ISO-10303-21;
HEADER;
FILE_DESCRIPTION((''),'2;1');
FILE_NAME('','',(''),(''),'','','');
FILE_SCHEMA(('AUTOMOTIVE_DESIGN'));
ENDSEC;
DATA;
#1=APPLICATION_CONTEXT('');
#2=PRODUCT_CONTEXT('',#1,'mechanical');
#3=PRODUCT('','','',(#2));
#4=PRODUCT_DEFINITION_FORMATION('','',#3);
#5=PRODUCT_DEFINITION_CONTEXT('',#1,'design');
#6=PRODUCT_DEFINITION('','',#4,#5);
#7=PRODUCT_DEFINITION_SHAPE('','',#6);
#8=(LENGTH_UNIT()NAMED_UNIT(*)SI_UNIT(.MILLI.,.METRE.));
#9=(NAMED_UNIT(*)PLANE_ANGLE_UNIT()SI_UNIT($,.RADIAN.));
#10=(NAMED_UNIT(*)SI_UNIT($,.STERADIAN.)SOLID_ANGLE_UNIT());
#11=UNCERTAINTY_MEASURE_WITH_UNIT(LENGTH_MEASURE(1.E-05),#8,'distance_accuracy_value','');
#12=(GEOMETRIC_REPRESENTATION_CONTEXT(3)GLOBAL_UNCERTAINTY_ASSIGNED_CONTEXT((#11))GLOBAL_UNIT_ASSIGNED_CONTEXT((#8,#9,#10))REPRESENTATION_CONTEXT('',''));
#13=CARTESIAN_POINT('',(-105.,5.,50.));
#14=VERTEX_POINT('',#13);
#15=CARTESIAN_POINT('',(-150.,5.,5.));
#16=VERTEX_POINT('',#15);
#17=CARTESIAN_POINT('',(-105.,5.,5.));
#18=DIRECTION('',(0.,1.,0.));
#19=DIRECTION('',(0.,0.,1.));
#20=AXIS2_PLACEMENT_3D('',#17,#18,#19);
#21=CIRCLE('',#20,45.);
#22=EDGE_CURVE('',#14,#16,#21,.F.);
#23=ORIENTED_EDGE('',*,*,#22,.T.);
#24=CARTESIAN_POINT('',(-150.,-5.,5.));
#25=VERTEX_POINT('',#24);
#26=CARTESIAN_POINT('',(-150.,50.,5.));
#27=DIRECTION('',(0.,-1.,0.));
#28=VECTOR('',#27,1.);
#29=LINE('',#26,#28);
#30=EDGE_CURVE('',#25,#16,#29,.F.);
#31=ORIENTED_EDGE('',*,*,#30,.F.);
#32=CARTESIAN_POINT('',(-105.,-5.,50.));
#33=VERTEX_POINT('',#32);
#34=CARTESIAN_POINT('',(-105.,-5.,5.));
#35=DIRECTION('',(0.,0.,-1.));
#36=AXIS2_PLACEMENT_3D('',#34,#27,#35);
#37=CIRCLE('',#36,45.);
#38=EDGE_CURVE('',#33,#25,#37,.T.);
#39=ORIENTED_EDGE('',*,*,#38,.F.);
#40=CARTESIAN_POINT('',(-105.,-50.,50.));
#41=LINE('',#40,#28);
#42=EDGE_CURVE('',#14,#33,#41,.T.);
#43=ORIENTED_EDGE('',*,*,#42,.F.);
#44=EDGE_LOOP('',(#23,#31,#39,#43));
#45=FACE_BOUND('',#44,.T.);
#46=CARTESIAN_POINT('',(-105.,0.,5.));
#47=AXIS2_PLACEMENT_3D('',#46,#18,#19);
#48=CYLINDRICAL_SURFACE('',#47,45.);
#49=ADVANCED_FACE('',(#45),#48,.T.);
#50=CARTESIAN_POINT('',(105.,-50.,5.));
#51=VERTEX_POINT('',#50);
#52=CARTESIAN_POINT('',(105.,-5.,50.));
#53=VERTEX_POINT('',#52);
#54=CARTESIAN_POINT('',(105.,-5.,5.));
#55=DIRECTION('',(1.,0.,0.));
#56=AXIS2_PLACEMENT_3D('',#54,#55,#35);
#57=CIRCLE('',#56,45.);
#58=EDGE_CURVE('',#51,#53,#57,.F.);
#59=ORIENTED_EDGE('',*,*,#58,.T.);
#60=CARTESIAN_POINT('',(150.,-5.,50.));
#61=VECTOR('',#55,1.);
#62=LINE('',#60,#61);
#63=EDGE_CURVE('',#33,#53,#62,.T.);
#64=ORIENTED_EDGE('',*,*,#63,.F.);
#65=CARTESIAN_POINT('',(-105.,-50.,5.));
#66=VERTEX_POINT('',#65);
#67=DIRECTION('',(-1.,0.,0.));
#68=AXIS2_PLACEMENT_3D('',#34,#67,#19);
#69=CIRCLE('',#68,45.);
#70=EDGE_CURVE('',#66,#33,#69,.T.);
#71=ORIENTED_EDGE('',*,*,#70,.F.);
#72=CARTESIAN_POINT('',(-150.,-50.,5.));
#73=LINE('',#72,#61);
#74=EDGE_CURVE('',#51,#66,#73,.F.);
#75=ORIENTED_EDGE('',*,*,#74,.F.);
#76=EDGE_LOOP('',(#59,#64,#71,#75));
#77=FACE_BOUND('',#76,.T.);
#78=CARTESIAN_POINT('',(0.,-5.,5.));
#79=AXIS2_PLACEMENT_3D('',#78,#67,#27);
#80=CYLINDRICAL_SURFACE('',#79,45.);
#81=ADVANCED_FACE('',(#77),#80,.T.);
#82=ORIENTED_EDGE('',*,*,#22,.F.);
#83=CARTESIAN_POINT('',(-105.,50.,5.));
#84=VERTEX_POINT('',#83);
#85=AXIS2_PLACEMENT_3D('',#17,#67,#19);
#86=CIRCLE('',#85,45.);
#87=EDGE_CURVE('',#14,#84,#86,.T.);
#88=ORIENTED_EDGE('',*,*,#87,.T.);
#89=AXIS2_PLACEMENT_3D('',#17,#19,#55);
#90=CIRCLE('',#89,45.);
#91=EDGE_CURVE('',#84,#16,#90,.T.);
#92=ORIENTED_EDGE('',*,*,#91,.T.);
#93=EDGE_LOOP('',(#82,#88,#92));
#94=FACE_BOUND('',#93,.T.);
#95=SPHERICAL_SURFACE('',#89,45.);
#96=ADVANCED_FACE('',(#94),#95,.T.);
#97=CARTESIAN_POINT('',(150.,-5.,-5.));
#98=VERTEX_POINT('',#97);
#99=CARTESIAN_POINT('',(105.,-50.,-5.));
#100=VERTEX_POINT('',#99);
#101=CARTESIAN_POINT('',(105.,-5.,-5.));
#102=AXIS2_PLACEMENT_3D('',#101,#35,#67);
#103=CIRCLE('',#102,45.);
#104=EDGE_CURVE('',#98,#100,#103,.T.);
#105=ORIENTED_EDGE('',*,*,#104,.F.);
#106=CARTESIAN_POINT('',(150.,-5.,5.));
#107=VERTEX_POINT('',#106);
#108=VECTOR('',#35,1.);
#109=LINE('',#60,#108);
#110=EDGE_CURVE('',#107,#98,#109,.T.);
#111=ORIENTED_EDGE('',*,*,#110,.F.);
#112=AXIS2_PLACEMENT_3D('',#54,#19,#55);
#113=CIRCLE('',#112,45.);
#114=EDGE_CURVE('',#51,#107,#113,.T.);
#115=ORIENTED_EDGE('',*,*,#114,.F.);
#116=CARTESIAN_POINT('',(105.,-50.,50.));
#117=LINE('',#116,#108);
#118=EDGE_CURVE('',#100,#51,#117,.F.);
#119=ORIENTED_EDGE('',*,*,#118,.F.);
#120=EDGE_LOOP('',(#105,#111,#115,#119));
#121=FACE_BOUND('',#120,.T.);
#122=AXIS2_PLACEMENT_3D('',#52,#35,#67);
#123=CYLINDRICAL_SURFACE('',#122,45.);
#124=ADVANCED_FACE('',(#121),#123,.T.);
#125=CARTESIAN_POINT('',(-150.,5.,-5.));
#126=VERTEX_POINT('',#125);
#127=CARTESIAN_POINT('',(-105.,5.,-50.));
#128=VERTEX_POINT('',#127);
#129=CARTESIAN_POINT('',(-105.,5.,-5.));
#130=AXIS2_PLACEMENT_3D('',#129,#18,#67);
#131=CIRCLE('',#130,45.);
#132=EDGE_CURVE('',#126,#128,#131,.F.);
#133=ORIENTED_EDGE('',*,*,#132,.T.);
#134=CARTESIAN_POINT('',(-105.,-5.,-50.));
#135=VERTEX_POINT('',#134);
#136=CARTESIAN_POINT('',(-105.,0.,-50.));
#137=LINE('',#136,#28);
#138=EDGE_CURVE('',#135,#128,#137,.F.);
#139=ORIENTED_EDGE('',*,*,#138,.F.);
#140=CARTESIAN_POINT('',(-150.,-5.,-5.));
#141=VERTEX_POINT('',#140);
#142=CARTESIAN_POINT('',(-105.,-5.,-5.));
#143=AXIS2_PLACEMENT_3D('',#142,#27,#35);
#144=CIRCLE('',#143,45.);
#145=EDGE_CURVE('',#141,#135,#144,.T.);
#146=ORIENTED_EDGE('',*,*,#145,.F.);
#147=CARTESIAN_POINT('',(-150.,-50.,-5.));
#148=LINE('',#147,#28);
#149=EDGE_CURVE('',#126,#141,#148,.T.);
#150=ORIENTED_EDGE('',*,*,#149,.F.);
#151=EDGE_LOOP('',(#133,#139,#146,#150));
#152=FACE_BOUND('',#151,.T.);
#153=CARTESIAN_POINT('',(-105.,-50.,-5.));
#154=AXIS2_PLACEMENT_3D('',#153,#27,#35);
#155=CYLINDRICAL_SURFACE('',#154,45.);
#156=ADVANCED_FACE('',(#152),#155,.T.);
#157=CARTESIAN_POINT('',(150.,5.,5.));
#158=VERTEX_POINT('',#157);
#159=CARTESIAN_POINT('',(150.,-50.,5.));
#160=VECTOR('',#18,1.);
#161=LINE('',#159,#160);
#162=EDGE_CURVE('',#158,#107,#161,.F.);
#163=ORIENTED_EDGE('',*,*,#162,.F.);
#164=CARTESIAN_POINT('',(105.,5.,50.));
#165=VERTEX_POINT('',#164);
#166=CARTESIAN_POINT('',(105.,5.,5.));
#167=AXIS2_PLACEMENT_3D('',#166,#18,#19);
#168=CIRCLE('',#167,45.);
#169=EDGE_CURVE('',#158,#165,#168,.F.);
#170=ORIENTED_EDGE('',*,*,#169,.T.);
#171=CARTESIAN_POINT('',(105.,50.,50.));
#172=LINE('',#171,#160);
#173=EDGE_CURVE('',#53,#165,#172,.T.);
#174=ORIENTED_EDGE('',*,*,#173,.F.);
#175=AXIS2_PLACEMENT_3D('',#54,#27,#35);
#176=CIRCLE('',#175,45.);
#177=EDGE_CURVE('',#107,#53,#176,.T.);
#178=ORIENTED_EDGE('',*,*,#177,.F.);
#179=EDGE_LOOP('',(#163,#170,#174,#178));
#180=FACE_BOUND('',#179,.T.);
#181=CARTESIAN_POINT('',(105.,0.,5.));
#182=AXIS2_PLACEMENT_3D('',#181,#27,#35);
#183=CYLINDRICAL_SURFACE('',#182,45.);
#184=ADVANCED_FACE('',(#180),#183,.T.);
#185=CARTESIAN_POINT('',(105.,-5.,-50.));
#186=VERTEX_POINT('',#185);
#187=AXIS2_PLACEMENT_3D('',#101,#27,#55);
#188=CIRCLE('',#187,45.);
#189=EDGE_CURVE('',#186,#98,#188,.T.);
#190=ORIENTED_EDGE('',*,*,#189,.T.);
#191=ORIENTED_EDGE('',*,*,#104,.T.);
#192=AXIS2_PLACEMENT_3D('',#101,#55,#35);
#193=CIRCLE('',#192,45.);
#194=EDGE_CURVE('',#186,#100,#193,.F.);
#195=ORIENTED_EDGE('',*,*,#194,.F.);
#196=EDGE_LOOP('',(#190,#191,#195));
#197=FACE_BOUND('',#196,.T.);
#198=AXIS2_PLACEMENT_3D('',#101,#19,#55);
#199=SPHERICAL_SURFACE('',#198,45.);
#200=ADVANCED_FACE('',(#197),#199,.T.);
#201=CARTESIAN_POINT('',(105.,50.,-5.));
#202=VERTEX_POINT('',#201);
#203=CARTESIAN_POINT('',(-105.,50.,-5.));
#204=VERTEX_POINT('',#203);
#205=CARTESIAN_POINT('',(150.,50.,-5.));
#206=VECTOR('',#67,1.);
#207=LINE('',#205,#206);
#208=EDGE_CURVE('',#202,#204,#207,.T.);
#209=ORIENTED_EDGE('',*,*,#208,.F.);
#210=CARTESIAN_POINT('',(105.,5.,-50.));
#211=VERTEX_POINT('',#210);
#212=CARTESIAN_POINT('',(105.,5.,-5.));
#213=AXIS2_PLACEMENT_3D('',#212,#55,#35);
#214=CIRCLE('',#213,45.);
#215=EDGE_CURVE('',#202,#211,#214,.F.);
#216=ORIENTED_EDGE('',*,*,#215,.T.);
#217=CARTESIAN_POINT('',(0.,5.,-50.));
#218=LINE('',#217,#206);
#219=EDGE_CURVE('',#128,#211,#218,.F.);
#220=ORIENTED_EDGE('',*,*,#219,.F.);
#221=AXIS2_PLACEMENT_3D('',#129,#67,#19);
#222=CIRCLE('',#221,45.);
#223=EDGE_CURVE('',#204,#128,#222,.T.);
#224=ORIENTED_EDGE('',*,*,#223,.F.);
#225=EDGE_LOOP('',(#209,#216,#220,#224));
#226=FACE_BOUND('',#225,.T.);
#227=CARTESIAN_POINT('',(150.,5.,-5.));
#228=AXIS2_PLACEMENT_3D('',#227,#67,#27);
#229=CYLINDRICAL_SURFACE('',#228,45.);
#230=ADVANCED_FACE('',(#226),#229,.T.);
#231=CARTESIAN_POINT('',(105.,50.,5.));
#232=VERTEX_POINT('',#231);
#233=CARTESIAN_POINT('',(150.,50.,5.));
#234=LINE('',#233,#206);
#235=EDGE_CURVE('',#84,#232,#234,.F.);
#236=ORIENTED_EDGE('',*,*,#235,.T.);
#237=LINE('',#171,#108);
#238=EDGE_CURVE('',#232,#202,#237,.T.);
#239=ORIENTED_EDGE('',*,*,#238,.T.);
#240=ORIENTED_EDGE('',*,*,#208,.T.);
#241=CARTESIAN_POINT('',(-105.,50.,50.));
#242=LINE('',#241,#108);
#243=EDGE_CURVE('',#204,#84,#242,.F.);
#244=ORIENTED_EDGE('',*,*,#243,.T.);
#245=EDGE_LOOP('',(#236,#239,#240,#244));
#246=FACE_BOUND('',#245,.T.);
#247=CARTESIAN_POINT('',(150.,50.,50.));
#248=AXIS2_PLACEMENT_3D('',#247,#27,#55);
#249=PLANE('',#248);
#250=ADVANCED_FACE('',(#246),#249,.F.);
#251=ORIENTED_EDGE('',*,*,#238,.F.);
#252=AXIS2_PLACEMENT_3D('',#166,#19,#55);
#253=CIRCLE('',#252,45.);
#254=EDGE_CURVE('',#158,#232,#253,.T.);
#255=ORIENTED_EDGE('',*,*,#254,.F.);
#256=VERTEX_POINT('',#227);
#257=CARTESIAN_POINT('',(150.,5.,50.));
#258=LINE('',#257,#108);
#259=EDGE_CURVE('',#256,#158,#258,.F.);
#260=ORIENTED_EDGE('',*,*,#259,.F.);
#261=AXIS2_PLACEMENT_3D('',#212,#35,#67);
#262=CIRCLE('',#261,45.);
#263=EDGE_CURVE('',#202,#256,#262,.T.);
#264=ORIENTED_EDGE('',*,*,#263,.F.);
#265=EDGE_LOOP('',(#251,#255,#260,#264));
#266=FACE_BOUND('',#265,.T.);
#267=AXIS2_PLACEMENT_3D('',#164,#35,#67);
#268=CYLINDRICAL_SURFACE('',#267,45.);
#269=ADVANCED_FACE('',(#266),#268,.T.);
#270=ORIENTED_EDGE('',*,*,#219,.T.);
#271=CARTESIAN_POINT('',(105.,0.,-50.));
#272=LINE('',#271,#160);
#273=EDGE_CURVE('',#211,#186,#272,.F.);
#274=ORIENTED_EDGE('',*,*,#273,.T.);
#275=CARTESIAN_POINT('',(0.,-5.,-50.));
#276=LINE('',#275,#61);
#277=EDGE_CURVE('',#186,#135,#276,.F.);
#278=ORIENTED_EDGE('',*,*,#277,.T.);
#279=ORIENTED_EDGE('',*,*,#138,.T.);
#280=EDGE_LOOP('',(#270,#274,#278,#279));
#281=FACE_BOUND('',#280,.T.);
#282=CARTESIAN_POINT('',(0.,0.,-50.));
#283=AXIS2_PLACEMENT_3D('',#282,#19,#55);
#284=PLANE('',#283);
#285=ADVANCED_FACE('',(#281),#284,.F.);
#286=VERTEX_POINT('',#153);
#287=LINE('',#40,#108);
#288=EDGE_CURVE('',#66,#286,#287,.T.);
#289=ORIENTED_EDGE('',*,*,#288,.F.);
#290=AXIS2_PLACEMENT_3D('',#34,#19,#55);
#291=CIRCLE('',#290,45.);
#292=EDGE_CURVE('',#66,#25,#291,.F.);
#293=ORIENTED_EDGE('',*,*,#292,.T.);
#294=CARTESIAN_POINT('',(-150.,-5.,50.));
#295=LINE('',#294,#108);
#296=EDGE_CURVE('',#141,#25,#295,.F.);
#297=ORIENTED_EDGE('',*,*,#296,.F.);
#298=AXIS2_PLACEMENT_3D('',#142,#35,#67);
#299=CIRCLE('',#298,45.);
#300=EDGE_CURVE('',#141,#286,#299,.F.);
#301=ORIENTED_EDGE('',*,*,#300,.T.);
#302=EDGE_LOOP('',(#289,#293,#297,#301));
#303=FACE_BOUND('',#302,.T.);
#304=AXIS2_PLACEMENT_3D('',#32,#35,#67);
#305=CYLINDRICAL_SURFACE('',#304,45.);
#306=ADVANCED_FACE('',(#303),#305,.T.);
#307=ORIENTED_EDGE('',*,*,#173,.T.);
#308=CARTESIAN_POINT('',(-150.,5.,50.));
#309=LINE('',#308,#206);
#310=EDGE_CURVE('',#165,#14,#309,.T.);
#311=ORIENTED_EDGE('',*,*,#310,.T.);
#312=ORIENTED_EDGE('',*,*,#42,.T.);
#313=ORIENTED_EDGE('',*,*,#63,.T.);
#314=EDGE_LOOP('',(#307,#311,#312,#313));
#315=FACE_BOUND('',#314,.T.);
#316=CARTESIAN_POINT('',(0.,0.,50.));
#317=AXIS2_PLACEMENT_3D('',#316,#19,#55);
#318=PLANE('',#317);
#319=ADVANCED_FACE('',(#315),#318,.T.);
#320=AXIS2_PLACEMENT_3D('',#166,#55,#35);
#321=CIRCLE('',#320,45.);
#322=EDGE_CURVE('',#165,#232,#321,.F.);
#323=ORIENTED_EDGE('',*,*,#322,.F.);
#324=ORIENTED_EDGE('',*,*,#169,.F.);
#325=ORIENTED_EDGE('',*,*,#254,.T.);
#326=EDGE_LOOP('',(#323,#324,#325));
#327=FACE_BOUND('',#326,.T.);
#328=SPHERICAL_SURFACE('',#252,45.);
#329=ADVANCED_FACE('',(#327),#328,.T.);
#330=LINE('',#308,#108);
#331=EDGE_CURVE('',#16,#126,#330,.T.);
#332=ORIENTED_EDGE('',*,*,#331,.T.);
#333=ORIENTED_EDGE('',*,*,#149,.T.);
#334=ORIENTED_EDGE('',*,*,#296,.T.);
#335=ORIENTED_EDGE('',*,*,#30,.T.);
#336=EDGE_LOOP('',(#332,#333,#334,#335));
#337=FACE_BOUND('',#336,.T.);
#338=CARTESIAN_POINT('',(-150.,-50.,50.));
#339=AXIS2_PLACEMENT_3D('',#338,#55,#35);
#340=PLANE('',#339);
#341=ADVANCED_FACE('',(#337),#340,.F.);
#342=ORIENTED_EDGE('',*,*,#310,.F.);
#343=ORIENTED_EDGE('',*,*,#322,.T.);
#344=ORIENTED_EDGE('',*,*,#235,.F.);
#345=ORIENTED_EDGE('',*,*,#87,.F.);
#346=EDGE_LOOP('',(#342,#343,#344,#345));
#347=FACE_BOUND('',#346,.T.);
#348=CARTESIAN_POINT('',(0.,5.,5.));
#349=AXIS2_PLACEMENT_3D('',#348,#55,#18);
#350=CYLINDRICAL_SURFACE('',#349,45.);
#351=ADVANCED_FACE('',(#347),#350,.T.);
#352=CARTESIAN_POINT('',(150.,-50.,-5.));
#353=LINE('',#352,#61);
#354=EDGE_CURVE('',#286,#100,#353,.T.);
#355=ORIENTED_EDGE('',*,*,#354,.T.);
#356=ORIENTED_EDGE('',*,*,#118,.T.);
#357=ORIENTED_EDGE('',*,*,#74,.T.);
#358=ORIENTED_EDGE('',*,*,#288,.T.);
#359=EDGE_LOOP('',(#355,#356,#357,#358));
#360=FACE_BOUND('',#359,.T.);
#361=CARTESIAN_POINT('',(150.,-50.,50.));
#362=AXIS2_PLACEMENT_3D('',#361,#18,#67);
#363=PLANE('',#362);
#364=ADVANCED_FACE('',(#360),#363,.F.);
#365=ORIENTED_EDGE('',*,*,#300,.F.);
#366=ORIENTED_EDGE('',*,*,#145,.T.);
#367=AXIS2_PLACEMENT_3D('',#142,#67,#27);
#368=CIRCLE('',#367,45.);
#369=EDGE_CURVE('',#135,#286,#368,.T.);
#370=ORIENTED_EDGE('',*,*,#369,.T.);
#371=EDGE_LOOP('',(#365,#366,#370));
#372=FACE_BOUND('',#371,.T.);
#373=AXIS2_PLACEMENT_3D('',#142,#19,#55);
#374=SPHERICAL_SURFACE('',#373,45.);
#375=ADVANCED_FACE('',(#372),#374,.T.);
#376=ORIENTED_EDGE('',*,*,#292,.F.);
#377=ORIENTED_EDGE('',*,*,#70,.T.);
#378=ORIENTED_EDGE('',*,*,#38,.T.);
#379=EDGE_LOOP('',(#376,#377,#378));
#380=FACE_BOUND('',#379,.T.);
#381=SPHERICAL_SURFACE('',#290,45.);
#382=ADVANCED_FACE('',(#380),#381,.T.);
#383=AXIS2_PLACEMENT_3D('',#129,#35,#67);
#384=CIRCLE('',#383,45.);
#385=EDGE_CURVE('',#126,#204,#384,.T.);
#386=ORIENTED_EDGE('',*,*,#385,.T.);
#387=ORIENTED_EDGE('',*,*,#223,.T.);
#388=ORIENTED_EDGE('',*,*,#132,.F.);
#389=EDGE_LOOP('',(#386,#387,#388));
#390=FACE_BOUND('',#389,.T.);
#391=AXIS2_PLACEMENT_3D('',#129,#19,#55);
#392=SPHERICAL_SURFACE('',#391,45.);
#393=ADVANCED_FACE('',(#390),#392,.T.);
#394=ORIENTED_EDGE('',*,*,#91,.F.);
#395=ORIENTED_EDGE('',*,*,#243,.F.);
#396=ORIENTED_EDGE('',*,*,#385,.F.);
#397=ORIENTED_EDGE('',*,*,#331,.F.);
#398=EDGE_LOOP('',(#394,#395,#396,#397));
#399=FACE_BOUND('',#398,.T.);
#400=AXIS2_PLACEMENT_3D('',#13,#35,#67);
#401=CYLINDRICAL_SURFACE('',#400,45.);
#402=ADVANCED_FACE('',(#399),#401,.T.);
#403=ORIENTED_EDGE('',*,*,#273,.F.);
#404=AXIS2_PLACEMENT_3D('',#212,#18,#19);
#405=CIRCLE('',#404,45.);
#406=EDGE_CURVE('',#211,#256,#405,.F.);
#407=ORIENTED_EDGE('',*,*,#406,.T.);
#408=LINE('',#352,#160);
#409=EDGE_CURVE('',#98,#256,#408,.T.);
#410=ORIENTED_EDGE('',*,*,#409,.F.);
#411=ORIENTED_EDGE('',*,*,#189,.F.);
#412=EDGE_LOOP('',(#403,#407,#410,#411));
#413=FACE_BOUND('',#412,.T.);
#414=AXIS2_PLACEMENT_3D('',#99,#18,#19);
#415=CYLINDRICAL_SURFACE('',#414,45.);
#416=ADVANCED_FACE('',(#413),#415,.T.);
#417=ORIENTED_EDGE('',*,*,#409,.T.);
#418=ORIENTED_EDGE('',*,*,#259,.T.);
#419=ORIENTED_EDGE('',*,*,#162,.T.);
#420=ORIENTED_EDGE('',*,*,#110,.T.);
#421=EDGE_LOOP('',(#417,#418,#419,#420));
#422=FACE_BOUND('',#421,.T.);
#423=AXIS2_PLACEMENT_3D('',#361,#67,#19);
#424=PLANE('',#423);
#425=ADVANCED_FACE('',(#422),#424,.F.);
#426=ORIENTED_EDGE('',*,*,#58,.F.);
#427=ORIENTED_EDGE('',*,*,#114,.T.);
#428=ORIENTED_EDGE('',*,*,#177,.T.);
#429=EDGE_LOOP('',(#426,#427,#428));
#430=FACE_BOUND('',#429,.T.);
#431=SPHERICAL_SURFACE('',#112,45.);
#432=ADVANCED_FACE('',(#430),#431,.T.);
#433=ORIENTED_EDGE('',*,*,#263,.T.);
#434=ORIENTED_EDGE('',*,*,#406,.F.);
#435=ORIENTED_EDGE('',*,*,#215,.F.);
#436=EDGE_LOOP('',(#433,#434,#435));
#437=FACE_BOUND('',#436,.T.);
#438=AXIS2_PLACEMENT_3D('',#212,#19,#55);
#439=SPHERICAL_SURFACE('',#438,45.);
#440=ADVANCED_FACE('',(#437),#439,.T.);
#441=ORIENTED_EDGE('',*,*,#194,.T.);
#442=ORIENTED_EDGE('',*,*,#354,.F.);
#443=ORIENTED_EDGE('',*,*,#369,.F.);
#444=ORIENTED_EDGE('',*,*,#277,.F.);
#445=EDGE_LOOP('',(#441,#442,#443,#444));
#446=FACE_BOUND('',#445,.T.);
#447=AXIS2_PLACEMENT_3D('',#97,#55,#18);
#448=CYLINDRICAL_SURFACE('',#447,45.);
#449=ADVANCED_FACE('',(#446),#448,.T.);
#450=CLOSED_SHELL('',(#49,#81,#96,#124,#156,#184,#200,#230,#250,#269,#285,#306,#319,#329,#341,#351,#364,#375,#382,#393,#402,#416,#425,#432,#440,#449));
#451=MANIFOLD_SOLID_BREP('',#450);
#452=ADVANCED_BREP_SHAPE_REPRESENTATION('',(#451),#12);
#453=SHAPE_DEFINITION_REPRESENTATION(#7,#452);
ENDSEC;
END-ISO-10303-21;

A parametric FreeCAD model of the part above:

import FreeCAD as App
import Part
import Sketcher
from FreeCAD import Vector
Q = App.Units.Quantity

doc = App.newDocument("Part")
params = doc.addObject("Spreadsheet::Sheet", "Params")
for row, (alias, value) in enumerate([
    ("sketch1_width", "300 mm"),
    ("sketch1_height", "100 mm"),
    ("pad1_length", "100 mm"),
    ("fillet_radius", "45 mm"),
], start=1):
    params.set(f"A{row}", alias)
    params.set(f"B{row}", "=" + value)
    params.setAlias(f"B{row}", alias)

body = doc.addObject("PartDesign::Body", "Body")

sketch1 = doc.addObject("Sketcher::SketchObject", "Sketch")
body.addObject(sketch1)
sketch1.AttachmentSupport = (doc.XY_Plane, [""])
sketch1.MapMode = "FlatFace"
sketch1.addGeometry(Part.LineSegment(Vector(-150, 50, 0), Vector(-150, -50, 0)), False)
sketch1.addGeometry(Part.LineSegment(Vector(-150, -50, 0), Vector(150, -50, 0)), False)
sketch1.addGeometry(Part.LineSegment(Vector(150, -50, 0), Vector(150, 50, 0)), False)
sketch1.addGeometry(Part.LineSegment(Vector(150, 50, 0), Vector(-150, 50, 0)), False)
sketch1.addConstraint(Sketcher.Constraint("Coincident", 0, 2, 1, 1))
sketch1.addConstraint(Sketcher.Constraint("Coincident", 1, 2, 2, 1))
sketch1.addConstraint(Sketcher.Constraint("Coincident", 2, 2, 3, 1))
sketch1.addConstraint(Sketcher.Constraint("Coincident", 3, 2, 0, 1))
sketch1.addConstraint(Sketcher.Constraint("Vertical", 0))
sketch1.addConstraint(Sketcher.Constraint("Horizontal", 1))
sketch1.addConstraint(Sketcher.Constraint("Vertical", 2))
sketch1.addConstraint(Sketcher.Constraint("Horizontal", 3))
sketch1.addConstraint(Sketcher.Constraint("Symmetric", 0, 2, 2, 2, -1, 1))
sketch1.addConstraint(Sketcher.Constraint("DistanceX", 1, 1, 1, 2, Q("300 mm")))
sketch1.addConstraint(Sketcher.Constraint("DistanceY", 0, 2, 0, 1, Q("100 mm")))
sketch1.setExpression("Constraints[9]", "Params.sketch1_width")
sketch1.setExpression("Constraints[10]", "Params.sketch1_height")
pad1 = doc.addObject("PartDesign::Pad", "Pad")
body.addObject(pad1)
pad1.Profile = sketch1
pad1.setExpression("Length", "Params.pad1_length")
pad1.Midplane = True
doc.recompute()

fillet = doc.addObject("PartDesign::Fillet", "Fillet")
body.addObject(fillet)
fillet.Base = (pad1, ["Edge1"])
fillet.UseAllEdges = True
fillet.setExpression("Radius", "Params.fillet_radius")

doc.recompute()
